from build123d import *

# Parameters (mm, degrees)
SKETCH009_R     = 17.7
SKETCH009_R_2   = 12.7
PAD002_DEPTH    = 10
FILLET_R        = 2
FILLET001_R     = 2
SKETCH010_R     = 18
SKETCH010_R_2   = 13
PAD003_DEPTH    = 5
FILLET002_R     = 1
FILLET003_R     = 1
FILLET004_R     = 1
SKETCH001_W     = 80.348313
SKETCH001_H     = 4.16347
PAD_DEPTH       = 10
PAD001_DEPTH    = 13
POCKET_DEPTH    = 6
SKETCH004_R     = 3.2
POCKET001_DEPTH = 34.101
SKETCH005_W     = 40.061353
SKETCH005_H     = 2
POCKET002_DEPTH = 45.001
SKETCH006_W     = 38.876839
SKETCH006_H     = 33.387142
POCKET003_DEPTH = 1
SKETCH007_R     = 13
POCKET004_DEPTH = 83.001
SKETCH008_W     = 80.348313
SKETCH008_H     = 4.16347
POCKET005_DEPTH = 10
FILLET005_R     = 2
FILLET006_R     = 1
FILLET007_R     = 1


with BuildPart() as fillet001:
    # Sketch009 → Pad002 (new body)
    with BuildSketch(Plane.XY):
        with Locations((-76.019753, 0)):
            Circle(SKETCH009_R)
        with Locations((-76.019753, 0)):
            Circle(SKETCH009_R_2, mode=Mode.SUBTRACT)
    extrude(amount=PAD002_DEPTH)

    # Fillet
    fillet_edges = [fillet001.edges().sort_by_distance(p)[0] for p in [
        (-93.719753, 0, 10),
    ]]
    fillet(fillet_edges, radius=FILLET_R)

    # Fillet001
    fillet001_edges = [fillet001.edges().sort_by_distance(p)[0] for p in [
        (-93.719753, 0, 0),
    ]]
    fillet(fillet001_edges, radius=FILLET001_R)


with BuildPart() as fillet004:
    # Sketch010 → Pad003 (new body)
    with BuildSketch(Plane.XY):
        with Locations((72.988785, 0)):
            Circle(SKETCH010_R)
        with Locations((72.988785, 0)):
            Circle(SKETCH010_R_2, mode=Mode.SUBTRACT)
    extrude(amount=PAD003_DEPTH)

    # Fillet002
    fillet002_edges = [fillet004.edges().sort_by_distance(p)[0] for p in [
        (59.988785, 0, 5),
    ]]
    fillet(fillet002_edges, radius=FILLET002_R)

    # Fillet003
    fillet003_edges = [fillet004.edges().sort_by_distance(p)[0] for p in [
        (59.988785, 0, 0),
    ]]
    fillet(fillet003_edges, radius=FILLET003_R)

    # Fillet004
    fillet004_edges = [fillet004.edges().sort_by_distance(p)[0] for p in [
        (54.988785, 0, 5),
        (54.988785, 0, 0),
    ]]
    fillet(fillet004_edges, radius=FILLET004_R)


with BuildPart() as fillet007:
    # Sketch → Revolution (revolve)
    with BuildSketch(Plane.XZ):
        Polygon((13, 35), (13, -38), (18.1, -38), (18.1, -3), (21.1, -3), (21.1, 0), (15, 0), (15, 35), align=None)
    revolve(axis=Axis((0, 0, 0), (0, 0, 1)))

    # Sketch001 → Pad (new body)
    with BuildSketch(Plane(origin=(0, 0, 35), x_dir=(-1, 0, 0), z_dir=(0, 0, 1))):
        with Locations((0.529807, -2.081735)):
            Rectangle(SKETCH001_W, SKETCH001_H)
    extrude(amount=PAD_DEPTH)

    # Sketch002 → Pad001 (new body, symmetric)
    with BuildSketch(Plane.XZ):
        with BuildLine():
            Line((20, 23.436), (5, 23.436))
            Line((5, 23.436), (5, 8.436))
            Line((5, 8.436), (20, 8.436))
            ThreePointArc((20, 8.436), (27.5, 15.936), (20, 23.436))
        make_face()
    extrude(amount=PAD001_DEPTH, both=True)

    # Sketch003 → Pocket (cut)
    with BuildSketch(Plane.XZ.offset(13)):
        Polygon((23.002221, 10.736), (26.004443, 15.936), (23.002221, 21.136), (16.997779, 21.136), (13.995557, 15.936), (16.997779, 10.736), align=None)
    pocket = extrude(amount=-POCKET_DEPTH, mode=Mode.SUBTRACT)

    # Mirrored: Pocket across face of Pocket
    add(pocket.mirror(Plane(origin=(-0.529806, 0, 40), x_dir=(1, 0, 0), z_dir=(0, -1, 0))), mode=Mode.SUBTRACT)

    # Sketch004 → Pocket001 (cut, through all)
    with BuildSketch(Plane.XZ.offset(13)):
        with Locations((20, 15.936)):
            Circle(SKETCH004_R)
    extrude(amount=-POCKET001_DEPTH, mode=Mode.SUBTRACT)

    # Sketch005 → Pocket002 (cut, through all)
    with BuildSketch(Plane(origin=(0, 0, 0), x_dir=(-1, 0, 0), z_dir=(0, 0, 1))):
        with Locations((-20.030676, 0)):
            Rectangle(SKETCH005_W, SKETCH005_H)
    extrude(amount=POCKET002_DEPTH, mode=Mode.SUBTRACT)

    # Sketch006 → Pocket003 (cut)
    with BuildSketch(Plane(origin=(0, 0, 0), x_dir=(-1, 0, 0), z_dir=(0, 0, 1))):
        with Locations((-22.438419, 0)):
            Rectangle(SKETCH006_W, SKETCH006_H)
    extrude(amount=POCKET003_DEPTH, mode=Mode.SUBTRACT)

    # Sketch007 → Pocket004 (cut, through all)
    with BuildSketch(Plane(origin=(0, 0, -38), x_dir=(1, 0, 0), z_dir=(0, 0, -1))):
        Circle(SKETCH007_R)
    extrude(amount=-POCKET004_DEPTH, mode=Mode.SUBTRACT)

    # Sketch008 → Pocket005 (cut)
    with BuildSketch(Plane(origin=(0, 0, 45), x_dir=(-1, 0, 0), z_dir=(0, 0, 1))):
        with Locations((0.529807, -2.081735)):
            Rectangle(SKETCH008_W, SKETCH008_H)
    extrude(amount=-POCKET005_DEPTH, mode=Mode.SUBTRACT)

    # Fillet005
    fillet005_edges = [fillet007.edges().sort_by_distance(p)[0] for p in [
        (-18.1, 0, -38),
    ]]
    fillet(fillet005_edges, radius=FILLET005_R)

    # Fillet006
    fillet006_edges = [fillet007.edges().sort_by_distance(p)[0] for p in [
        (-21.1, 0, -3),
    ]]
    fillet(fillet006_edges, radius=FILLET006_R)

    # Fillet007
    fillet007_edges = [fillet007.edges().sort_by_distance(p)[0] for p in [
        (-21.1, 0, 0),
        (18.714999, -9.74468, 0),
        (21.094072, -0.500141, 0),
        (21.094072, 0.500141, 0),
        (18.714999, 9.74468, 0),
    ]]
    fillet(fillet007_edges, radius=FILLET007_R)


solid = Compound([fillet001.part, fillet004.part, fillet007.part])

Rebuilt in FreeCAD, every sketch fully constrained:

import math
import FreeCAD as App
import Part
import Sketcher
Q = App.Units.Quantity


def edges_at(feature, points):
    """Names of the edges that pass closest to the given points."""
    edges = feature.Shape.Edges
    near = lambda p: min(range(len(edges)), key=lambda i: edges[i].distToShape(Part.Vertex(*p))[0])
    return sorted({f"Edge{near(p) + 1}" for p in points})

doc = App.newDocument("Part")
body = doc.addObject("PartDesign::Body", "Body")

# Sketch on XY plane
sketch1 = body.newObject("Sketcher::SketchObject", "Sketch")
sketch1.AttachmentSupport = (doc.getObject("XY_Plane"), [""])
sketch1.MapMode = "FlatFace"
sketch1.addGeometry([
    Part.Circle(App.Vector(-76, 0, 0), App.Vector(0, 0, 1), 18),
    Part.Circle(App.Vector(-76, 0, 0), App.Vector(0, 0, 1), 13),
], False)
sketch1.addConstraint([
    Sketcher.Constraint("Coincident", 1, 3, 0, 3),
    Sketcher.Constraint("PointOnObject", 0, 3, -1),
    Sketcher.Constraint("Diameter", 0, Q("35.4 mm")),
    Sketcher.Constraint("Diameter", 1, Q("25.4 mm")),
    Sketcher.Constraint("DistanceX", 0, 3, -1, 1, Q("76.019753 mm")),
])
pad1 = body.newObject("PartDesign::Pad", "Pad")
pad1.Profile = sketch1
pad1.Length = 10
doc.recompute()

fillet = body.newObject("PartDesign::Fillet", "Fillet")
fillet.Base = (pad1, edges_at(pad1, [(-93.72, 0, 10)]))
fillet.Radius = 2
doc.recompute()

fillet2 = body.newObject("PartDesign::Fillet", "Fillet001")
fillet2.Base = (fillet, edges_at(fillet, [(-93.72, 0, 0)]))
fillet2.Radius = 2
body2 = doc.addObject("PartDesign::Body", "Body001")

# Sketch on XY plane
sketch2 = body2.newObject("Sketcher::SketchObject", "Sketch001")
sketch2.AttachmentSupport = (doc.getObject("XY_Plane001"), [""])
sketch2.MapMode = "FlatFace"
sketch2.addGeometry([
    Part.Circle(App.Vector(73, 0, 0), App.Vector(0, 0, 1), 18),
    Part.Circle(App.Vector(73, 0, 0), App.Vector(0, 0, 1), 13),
], False)
sketch2.addConstraint([
    Sketcher.Constraint("Coincident", 1, 3, 0, 3),
    Sketcher.Constraint("PointOnObject", 0, 3, -1),
    Sketcher.Constraint("Diameter", 0, Q("36 mm")),
    Sketcher.Constraint("Diameter", 1, Q("26 mm")),
    Sketcher.Constraint("DistanceX", -1, 1, 0, 3, Q("72.988785 mm")),
])
pad2 = body2.newObject("PartDesign::Pad", "Pad001")
pad2.Profile = sketch2
pad2.Length = 5
doc.recompute()

fillet3 = body2.newObject("PartDesign::Fillet", "Fillet002")
fillet3.Base = (pad2, edges_at(pad2, [(59.989, 0, 5)]))
fillet3.Radius = 1
doc.recompute()

fillet4 = body2.newObject("PartDesign::Fillet", "Fillet003")
fillet4.Base = (fillet3, edges_at(fillet3, [(59.989, 0, 0)]))
fillet4.Radius = 1
doc.recompute()

fillet5 = body2.newObject("PartDesign::Fillet", "Fillet004")
fillet5.Base = (fillet4, edges_at(fillet4, [(54.989, 0, 5), (54.989, 0, 0)]))
fillet5.Radius = 1
body3 = doc.addObject("PartDesign::Body", "Body002")

# Sketch on XZ plane
sketch3 = body3.newObject("Sketcher::SketchObject", "Sketch002")
sketch3.AttachmentSupport = (doc.getObject("XZ_Plane002"), [""])
sketch3.MapMode = "FlatFace"
sketch3.addGeometry([
    Part.LineSegment(App.Vector(13, 35, 0), App.Vector(13, -38, 0)),  # 0
    Part.LineSegment(App.Vector(13, -38, 0), App.Vector(18.1, -38, 0)),  # 1
    Part.LineSegment(App.Vector(18.1, -38, 0), App.Vector(18.1, -3, 0)),  # 2
    Part.LineSegment(App.Vector(18.1, -3, 0), App.Vector(21.1, -3, 0)),  # 3
    Part.LineSegment(App.Vector(21.1, -3, 0), App.Vector(21.1, 0, 0)),  # 4
    Part.LineSegment(App.Vector(21.1, 0, 0), App.Vector(15, 0, 0)),  # 5
    Part.LineSegment(App.Vector(15, 0, 0), App.Vector(15, 35, 0)),  # 6
    Part.LineSegment(App.Vector(15, 35, 0), App.Vector(13, 35, 0)),  # 7
], False)
sketch3.addConstraint([
    Sketcher.Constraint("Coincident", 0, 2, 1, 1),
    Sketcher.Constraint("Coincident", 1, 2, 2, 1),
    Sketcher.Constraint("Coincident", 2, 2, 3, 1),
    Sketcher.Constraint("Coincident", 3, 2, 4, 1),
    Sketcher.Constraint("Coincident", 4, 2, 5, 1),
    Sketcher.Constraint("Coincident", 5, 2, 6, 1),
    Sketcher.Constraint("Coincident", 6, 2, 7, 1),
    Sketcher.Constraint("Coincident", 7, 2, 0, 1),
    Sketcher.Constraint("Vertical", 0),
    Sketcher.Constraint("Horizontal", 1),
    Sketcher.Constraint("Vertical", 2),
    Sketcher.Constraint("Horizontal", 3),
    Sketcher.Constraint("Vertical", 4),
    Sketcher.Constraint("Horizontal", 5),
    Sketcher.Constraint("Vertical", 6),
    Sketcher.Constraint("Horizontal", 7),
    Sketcher.Constraint("PointOnObject", 4, 2, -1),
    Sketcher.Constraint("Equal", 3, 4),
    Sketcher.Constraint("Equal", 2, 6),
    Sketcher.Constraint("DistanceX", 3, 1, 3, 2, Q("3 mm")),
    Sketcher.Constraint("DistanceX", 7, 2, 7, 1, Q("2 mm")),
    Sketcher.Constraint("DistanceY", 0, 2, 0, 1, Q("73 mm")),
    Sketcher.Constraint("DistanceX", 1, 1, 1, 2, Q("5.1 mm")),
    Sketcher.Constraint("DistanceX", -1, 1, 0, 2, Q("13 mm")),
])
revolution = body3.newObject("PartDesign::Revolution", "Revolution")
revolution.Profile = sketch3
revolution.ReferenceAxis = (sketch3, ["V_Axis"])
revolution.Angle = 360

# Sketch on XY plane
sketch4 = body3.newObject("Sketcher::SketchObject", "Sketch003")
sketch4.AttachmentSupport = (doc.getObject("XY_Plane002"), [""])
sketch4.MapMode = "FlatFace"
sketch4.AttachmentOffset = App.Placement(App.Vector(0, 0, 35), App.Rotation())
sketch4.addGeometry([
    Part.LineSegment(App.Vector(39.6, 0, 0), App.Vector(39.6, 4.2, 0)),
    Part.LineSegment(App.Vector(39.6, 4.2, 0), App.Vector(-40.7, 4.2, 0)),
    Part.LineSegment(App.Vector(-40.7, 4.2, 0), App.Vector(-40.7, 0, 0)),
    Part.LineSegment(App.Vector(-40.7, 0, 0), App.Vector(39.6, 0, 0)),
], False)
sketch4.addConstraint([
    Sketcher.Constraint("Coincident", 0, 2, 1, 1),
    Sketcher.Constraint("Coincident", 1, 2, 2, 1),
    Sketcher.Constraint("Coincident", 2, 2, 3, 1),
    Sketcher.Constraint("Coincident", 3, 2, 0, 1),
    Sketcher.Constraint("Vertical", 0),
    Sketcher.Constraint("Horizontal", 1),
    Sketcher.Constraint("Vertical", 2),
    Sketcher.Constraint("Horizontal", 3),
    Sketcher.Constraint("PointOnObject", 2, 2, -1),
    Sketcher.Constraint("DistanceY", 0, 1, 0, 2, Q("4.16347 mm")),
    Sketcher.Constraint("DistanceX", 1, 2, 1, 1, Q("80.348313 mm")),
    Sketcher.Constraint("DistanceX", -1, 1, 0, 2, Q("39.644349 mm")),
])
pad3 = body3.newObject("PartDesign::Pad", "Pad002")
pad3.Profile = sketch4
pad3.Length = 10

# Sketch on XZ plane
sketch5 = body3.newObject("Sketcher::SketchObject", "Sketch004")
sketch5.AttachmentSupport = (doc.getObject("XZ_Plane002"), [""])
sketch5.MapMode = "FlatFace"
sketch5.addGeometry([
    Part.LineSegment(App.Vector(20, 23, 0), App.Vector(5, 23, 0)),
    Part.LineSegment(App.Vector(5, 23, 0), App.Vector(5, 8, 0)),
    Part.LineSegment(App.Vector(5, 8, 0), App.Vector(20, 8, 0)),
    Part.ArcOfCircle(Part.Circle(App.Vector(20, 16, 0), App.Vector(0, 0, 1), 8), math.radians(-90), math.radians(90)),
], False)
sketch5.addConstraint([
    Sketcher.Constraint("Coincident", 0, 2, 1, 1),
    Sketcher.Constraint("Coincident", 1, 2, 2, 1),
    Sketcher.Constraint("Tangent", 2, 2, 3, 1),
    Sketcher.Constraint("Tangent", 3, 2, 0, 1),
    Sketcher.Constraint("Horizontal", 0),
    Sketcher.Constraint("Vertical", 1),
    Sketcher.Constraint("Horizontal", 2),
    Sketcher.Constraint("Equal", 2, 1),
    Sketcher.Constraint("Radius", 3, Q("7.5 mm")),
    Sketcher.Constraint("DistanceX", -1, 1, 3, 3, Q("20 mm")),
    Sketcher.Constraint("DistanceY", -1, 1, 3, 3, Q("15.936 mm")),
])
pad4 = body3.newObject("PartDesign::Pad", "Pad003")
pad4.Profile = sketch5
pad4.Length = 26
pad4.Midplane = True

# Sketch on XZ plane
sketch6 = body3.newObject("Sketcher::SketchObject", "Sketch005")
sketch6.AttachmentSupport = (doc.getObject("XZ_Plane002"), [""])
sketch6.MapMode = "FlatFace"
sketch6.AttachmentOffset = App.Placement(App.Vector(0, 0, 13), App.Rotation())
sketch6.addGeometry([
    Part.LineSegment(App.Vector(23, 11, 0), App.Vector(26, 16, 0)),  # 0
    Part.LineSegment(App.Vector(26, 16, 0), App.Vector(23, 21, 0)),  # 1
    Part.LineSegment(App.Vector(23, 21, 0), App.Vector(17, 21, 0)),  # 2
    Part.LineSegment(App.Vector(17, 21, 0), App.Vector(14, 16, 0)),  # 3
    Part.LineSegment(App.Vector(14, 16, 0), App.Vector(17, 11, 0)),  # 4
    Part.LineSegment(App.Vector(17, 11, 0), App.Vector(23, 11, 0)),  # 5
], False)
sketch6.addConstraint([
    Sketcher.Constraint("Coincident", 0, 2, 1, 1),
    Sketcher.Constraint("Coincident", 1, 2, 2, 1),
    Sketcher.Constraint("Coincident", 2, 2, 3, 1),
    Sketcher.Constraint("Coincident", 3, 2, 4, 1),
    Sketcher.Constraint("Coincident", 4, 2, 5, 1),
    Sketcher.Constraint("Coincident", 5, 2, 0, 1),
    Sketcher.Constraint("Horizontal", 2),
    Sketcher.Constraint("Horizontal", 5),
    Sketcher.Constraint("Parallel", 0, 3),
    Sketcher.Constraint("Parallel", 1, 4),
    Sketcher.Constraint("Horizontal", 0, 2, 3, 2),
    Sketcher.Constraint("Vertical", 2, 2, 4, 2),
    Sketcher.Constraint("Vertical", 1, 2, 5, 2),
    Sketcher.Constraint("Angle", 0, Q("59.999995 deg")),
    Sketcher.Constraint("DistanceY", 0, 2, 1, 2, Q("5.2 mm")),
    Sketcher.Constraint("DistanceY", -1, 1, 0, 2, Q("15.936 mm")),
    Sketcher.Constraint("DistanceX", 2, 2, 2, 1, Q("6.004442 mm")),
    Sketcher.Constraint("DistanceX", -1, 1, 1, 2, Q("23.002221 mm")),
])
pocket1 = body3.newObject("PartDesign::Pocket", "Pocket")
pocket1.Profile = sketch6
pocket1.Length = 6
doc.recompute()

mirrored = body3.newObject("PartDesign::Mirrored", "Mirrored")
mirrored.Originals = [pocket1]
mirrored.MirrorPlane = (doc.getObject("XZ_Plane002"), [""])
body3.Tip = mirrored

# Sketch on XZ plane
sketch7 = body3.newObject("Sketcher::SketchObject", "Sketch006")
sketch7.AttachmentSupport = (doc.getObject("XZ_Plane002"), [""])
sketch7.MapMode = "FlatFace"
sketch7.AttachmentOffset = App.Placement(App.Vector(0, 0, 13), App.Rotation())
sketch7.addGeometry(Part.Circle(App.Vector(20, 15.9, 0), App.Vector(0, 0, 1), 3.2), False)
sketch7.addConstraint([
    Sketcher.Constraint("Diameter", 0, Q("6.4 mm")),
    Sketcher.Constraint("DistanceX", -1, 1, 0, 3, Q("20 mm")),
    Sketcher.Constraint("DistanceY", -1, 1, 0, 3, Q("15.936 mm")),
])
pocket2 = body3.newObject("PartDesign::Pocket", "Pocket001")
pocket2.Profile = sketch7
pocket2.Type = "ThroughAll"

# Sketch on XY plane
sketch8 = body3.newObject("Sketcher::SketchObject", "Sketch007")
sketch8.AttachmentSupport = (doc.getObject("XY_Plane002"), [""])
sketch8.MapMode = "FlatFace"
sketch8.addGeometry([
    Part.LineSegment(App.Vector(40.1, -1, 0), App.Vector(40.1, 1, 0)),
    Part.LineSegment(App.Vector(40.1, 1, 0), App.Vector(0, 1, 0)),
    Part.LineSegment(App.Vector(0, 1, 0), App.Vector(0, -1, 0)),
    Part.LineSegment(App.Vector(0, -1, 0), App.Vector(40.1, -1, 0)),
], False)
sketch8.addConstraint([
    Sketcher.Constraint("Coincident", 0, 2, 1, 1),
    Sketcher.Constraint("Coincident", 1, 2, 2, 1),
    Sketcher.Constraint("Coincident", 2, 2, 3, 1),
    Sketcher.Constraint("Coincident", 3, 2, 0, 1),
    Sketcher.Constraint("Vertical", 0),
    Sketcher.Constraint("Horizontal", 1),
    Sketcher.Constraint("Vertical", 2),
    Sketcher.Constraint("Horizontal", 3),
    Sketcher.Constraint("Symmetric", 1, 2, 2, 2, -1, 1),
    Sketcher.Constraint("DistanceY", 0, 1, 0, 2, Q("2 mm")),
    Sketcher.Constraint("DistanceX", 1, 2, 1, 1, Q("40.061353 mm")),
])
pocket3 = body3.newObject("PartDesign::Pocket", "Pocket002")
pocket3.Profile = sketch8
pocket3.Type = "ThroughAll"
pocket3.Reversed = True

# Sketch on XY plane
sketch9 = body3.newObject("Sketcher::SketchObject", "Sketch008")
sketch9.AttachmentSupport = (doc.getObject("XY_Plane002"), [""])
sketch9.MapMode = "FlatFace"
sketch9.addGeometry([
    Part.LineSegment(App.Vector(42, -17, 0), App.Vector(42, 17, 0)),
    Part.LineSegment(App.Vector(42, 17, 0), App.Vector(3, 17, 0)),
    Part.LineSegment(App.Vector(3, 17, 0), App.Vector(3, -17, 0)),
    Part.LineSegment(App.Vector(3, -17, 0), App.Vector(42, -17, 0)),
], False)
sketch9.addConstraint([
    Sketcher.Constraint("Coincident", 0, 2, 1, 1),
    Sketcher.Constraint("Coincident", 1, 2, 2, 1),
    Sketcher.Constraint("Coincident", 2, 2, 3, 1),
    Sketcher.Constraint("Coincident", 3, 2, 0, 1),
    Sketcher.Constraint("Vertical", 0),
    Sketcher.Constraint("Horizontal", 1),
    Sketcher.Constraint("Vertical", 2),
    Sketcher.Constraint("Horizontal", 3),
    Sketcher.Constraint("DistanceX", -1, 1, 1, 2, Q("2.999999 mm")),
    Sketcher.Constraint("DistanceX", 1, 2, 1, 1, Q("38.876839 mm")),
    Sketcher.Constraint("DistanceY", 0, 1, 0, 2, Q("33.387142 mm")),
    Sketcher.Constraint("DistanceY", -1, 1, 0, 2, Q("16.693571 mm")),
])
pocket4 = body3.newObject("PartDesign::Pocket", "Pocket003")
pocket4.Profile = sketch9
pocket4.Length = 1
pocket4.Reversed = True

# Sketch on XY plane
sketch10 = body3.newObject("Sketcher::SketchObject", "Sketch009")
sketch10.AttachmentSupport = (doc.getObject("XY_Plane002"), [""])
sketch10.MapMode = "FlatFace"
sketch10.AttachmentOffset = App.Placement(App.Vector(0, 0, -38), App.Rotation())
sketch10.addGeometry(Part.Circle(App.Vector(0, 0, 0), App.Vector(0, 0, 1), 13), False)
sketch10.addConstraint([
    Sketcher.Constraint("Coincident", 0, 3, -1, 1),
    Sketcher.Constraint("Diameter", 0, Q("26 mm")),
])
pocket5 = body3.newObject("PartDesign::Pocket", "Pocket004")
pocket5.Profile = sketch10
pocket5.Type = "ThroughAll"
pocket5.Reversed = True

# Sketch on XY plane
sketch11 = body3.newObject("Sketcher::SketchObject", "Sketch010")
sketch11.AttachmentSupport = (doc.getObject("XY_Plane002"), [""])
sketch11.MapMode = "FlatFace"
sketch11.AttachmentOffset = App.Placement(App.Vector(0, 0, 45), App.Rotation())
sketch11.addGeometry([
    Part.LineSegment(App.Vector(39.6, 0, 0), App.Vector(39.6, 4.2, 0)),
    Part.LineSegment(App.Vector(39.6, 4.2, 0), App.Vector(-40.7, 4.2, 0)),
    Part.LineSegment(App.Vector(-40.7, 4.2, 0), App.Vector(-40.7, 0, 0)),
    Part.LineSegment(App.Vector(-40.7, 0, 0), App.Vector(39.6, 0, 0)),
], False)
sketch11.addConstraint([
    Sketcher.Constraint("Coincident", 0, 2, 1, 1),
    Sketcher.Constraint("Coincident", 1, 2, 2, 1),
    Sketcher.Constraint("Coincident", 2, 2, 3, 1),
    Sketcher.Constraint("Coincident", 3, 2, 0, 1),
    Sketcher.Constraint("Vertical", 0),
    Sketcher.Constraint("Horizontal", 1),
    Sketcher.Constraint("Vertical", 2),
    Sketcher.Constraint("Horizontal", 3),
    Sketcher.Constraint("PointOnObject", 2, 2, -1),
    Sketcher.Constraint("DistanceY", 0, 1, 0, 2, Q("4.16347 mm")),
    Sketcher.Constraint("DistanceX", 1, 2, 1, 1, Q("80.348313 mm")),
    Sketcher.Constraint("DistanceX", -1, 1, 0, 2, Q("39.644349 mm")),
])
pocket6 = body3.newObject("PartDesign::Pocket", "Pocket005")
pocket6.Profile = sketch11
pocket6.Length = 10
doc.recompute()

fillet6 = body3.newObject("PartDesign::Fillet", "Fillet005")
fillet6.Base = (pocket6, edges_at(pocket6, [(-18.1, 0, -38)]))
fillet6.Radius = 2
doc.recompute()

fillet7 = body3.newObject("PartDesign::Fillet", "Fillet006")
fillet7.Base = (fillet6, edges_at(fillet6, [(-21.1, 0, -3)]))
fillet7.Radius = 1
doc.recompute()

fillet8 = body3.newObject("PartDesign::Fillet", "Fillet007")
fillet8.Base = (fillet7, edges_at(fillet7, [
    (-21.1, 0, 0),
    (-21.1, 0, 0),
    (-21.1, 0, 0),
    (-21.1, 0, 0),
    (-21.1, 0, 0),
]))
fillet8.Radius = 1

doc.recompute()
